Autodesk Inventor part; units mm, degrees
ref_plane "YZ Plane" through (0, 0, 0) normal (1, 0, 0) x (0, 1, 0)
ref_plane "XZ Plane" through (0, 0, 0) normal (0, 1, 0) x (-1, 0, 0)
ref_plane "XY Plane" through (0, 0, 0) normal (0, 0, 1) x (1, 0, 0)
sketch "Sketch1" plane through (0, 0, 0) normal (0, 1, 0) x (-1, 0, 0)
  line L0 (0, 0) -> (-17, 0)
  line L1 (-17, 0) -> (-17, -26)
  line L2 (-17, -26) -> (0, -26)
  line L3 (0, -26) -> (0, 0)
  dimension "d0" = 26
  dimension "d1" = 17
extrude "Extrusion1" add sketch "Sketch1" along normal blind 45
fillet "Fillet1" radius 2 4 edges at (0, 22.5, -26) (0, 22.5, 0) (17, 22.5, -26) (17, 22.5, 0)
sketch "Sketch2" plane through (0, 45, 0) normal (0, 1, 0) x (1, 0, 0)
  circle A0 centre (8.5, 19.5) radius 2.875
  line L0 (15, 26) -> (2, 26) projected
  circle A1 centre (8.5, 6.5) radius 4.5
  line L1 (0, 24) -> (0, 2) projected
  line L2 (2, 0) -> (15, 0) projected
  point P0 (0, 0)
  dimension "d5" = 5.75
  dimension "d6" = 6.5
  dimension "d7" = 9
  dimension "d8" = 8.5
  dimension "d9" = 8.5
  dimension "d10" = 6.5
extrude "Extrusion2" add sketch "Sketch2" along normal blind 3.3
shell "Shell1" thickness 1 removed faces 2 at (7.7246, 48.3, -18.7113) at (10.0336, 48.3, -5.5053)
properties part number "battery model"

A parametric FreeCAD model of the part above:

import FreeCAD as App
import Part
import Sketcher
from FreeCAD import Vector
Q = App.Units.Quantity


def edges_at(feature, points):
    """Names of the edges that pass closest to the given points."""
    edges = feature.Shape.Edges
    near = lambda p: min(range(len(edges)), key=lambda i: edges[i].distToShape(Part.Vertex(*p))[0])
    return sorted({f"Edge{near(p) + 1}" for p in points})


def faces_at(feature, points):
    """Names of the faces that lie closest to the given points."""
    faces = feature.Shape.Faces
    near = lambda p: min(range(len(faces)), key=lambda i: faces[i].distToShape(Part.Vertex(*p))[0])
    return sorted({f"Face{near(p) + 1}" for p in points})


def add_polygon(sketch, points):
    """Adds a closed chain of lines whose ends are joined by coincident constraints."""
    first, n = sketch.GeometryCount, len(points)
    for a, b in zip(points, points[1:] + points[:1]):
        sketch.addGeometry(Part.LineSegment(App.Vector(*a, 0), App.Vector(*b, 0)), False)
    for i in range(n):
        sketch.addConstraint(Sketcher.Constraint("Coincident", first + i, 2, first + (i + 1) % n, 1))

doc = App.newDocument("Part")
body = doc.addObject("PartDesign::Body", "Body")

sketch1 = body.newObject("Sketcher::SketchObject", "Sketch")
sketch1.AttachmentSupport = (doc.getObject("XZ_Plane"), [""])
sketch1.MapMode = "FlatFace"
add_polygon(sketch1, [(0, -26), (0, 0), (17, 0), (17, -26)])
sketch1.addConstraint(Sketcher.Constraint("Vertical", 0))
sketch1.addConstraint(Sketcher.Constraint("Horizontal", 1))
sketch1.addConstraint(Sketcher.Constraint("Vertical", 2))
sketch1.addConstraint(Sketcher.Constraint("Horizontal", 3))
sketch1.addConstraint(Sketcher.Constraint("Coincident", 0, 2, -1, 1))
sketch1.addConstraint(Sketcher.Constraint("DistanceX", 1, 1, 1, 2, Q("17 mm")))
sketch1.addConstraint(Sketcher.Constraint("DistanceY", 0, 1, 0, 2, Q("26 mm")))
pad1 = body.newObject("PartDesign::Pad", "Pad")
pad1.Profile = sketch1
pad1.Length = 45
pad1.Reversed = True
doc.recompute()

fillet = body.newObject("PartDesign::Fillet", "Fillet")
fillet.Base = (pad1, edges_at(pad1, [
    (0, 22.5, -26),
    (0, 22.5, 0),
    (17, 22.5, -26),
    (17, 22.5, 0),
]))
fillet.Radius = 2

sketch2 = body.newObject("Sketcher::SketchObject", "Sketch001")
sketch2.AttachmentSupport = (doc.getObject("XZ_Plane"), [""])
sketch2.MapMode = "FlatFace"
sketch2.AttachmentOffset = App.Placement(Vector(0, 0, -45), App.Rotation())
sketch2.addGeometry(Part.Circle(Vector(8.5, -19.5, 0), Vector(0, 0, 1), 2.9), False)
sketch2.addGeometry(Part.Circle(Vector(8.5, -6.5, 0), Vector(0, 0, 1), 4.5), False)
sketch2.addConstraint(Sketcher.Constraint("Vertical", 0, 3, 1, 3))
sketch2.addConstraint(Sketcher.Constraint("Diameter", 1, Q("9 mm")))
sketch2.addConstraint(Sketcher.Constraint("Diameter", 0, Q("5.75 mm")))
sketch2.addConstraint(Sketcher.Constraint("DistanceX", -1, 1, 0, 3, Q("8.5 mm")))
sketch2.addConstraint(Sketcher.Constraint("DistanceY", 1, 3, -1, 1, Q("6.5 mm")))
sketch2.addConstraint(Sketcher.Constraint("DistanceY", 0, 3, 1, 3, Q("13 mm")))
pad2 = body.newObject("PartDesign::Pad", "Pad001")
pad2.Profile = sketch2
pad2.Length = 3.3
pad2.Reversed = True
doc.recompute()

thickness = body.newObject("PartDesign::Thickness", "Thickness")
thickness.Base = (pad2, faces_at(pad2, [(7.725, 48.3, -18.711), (10.034, 48.3, -5.505)]))
thickness.Value = 1
thickness.Reversed = True
thickness.Join = "Intersection"

doc.recompute()
